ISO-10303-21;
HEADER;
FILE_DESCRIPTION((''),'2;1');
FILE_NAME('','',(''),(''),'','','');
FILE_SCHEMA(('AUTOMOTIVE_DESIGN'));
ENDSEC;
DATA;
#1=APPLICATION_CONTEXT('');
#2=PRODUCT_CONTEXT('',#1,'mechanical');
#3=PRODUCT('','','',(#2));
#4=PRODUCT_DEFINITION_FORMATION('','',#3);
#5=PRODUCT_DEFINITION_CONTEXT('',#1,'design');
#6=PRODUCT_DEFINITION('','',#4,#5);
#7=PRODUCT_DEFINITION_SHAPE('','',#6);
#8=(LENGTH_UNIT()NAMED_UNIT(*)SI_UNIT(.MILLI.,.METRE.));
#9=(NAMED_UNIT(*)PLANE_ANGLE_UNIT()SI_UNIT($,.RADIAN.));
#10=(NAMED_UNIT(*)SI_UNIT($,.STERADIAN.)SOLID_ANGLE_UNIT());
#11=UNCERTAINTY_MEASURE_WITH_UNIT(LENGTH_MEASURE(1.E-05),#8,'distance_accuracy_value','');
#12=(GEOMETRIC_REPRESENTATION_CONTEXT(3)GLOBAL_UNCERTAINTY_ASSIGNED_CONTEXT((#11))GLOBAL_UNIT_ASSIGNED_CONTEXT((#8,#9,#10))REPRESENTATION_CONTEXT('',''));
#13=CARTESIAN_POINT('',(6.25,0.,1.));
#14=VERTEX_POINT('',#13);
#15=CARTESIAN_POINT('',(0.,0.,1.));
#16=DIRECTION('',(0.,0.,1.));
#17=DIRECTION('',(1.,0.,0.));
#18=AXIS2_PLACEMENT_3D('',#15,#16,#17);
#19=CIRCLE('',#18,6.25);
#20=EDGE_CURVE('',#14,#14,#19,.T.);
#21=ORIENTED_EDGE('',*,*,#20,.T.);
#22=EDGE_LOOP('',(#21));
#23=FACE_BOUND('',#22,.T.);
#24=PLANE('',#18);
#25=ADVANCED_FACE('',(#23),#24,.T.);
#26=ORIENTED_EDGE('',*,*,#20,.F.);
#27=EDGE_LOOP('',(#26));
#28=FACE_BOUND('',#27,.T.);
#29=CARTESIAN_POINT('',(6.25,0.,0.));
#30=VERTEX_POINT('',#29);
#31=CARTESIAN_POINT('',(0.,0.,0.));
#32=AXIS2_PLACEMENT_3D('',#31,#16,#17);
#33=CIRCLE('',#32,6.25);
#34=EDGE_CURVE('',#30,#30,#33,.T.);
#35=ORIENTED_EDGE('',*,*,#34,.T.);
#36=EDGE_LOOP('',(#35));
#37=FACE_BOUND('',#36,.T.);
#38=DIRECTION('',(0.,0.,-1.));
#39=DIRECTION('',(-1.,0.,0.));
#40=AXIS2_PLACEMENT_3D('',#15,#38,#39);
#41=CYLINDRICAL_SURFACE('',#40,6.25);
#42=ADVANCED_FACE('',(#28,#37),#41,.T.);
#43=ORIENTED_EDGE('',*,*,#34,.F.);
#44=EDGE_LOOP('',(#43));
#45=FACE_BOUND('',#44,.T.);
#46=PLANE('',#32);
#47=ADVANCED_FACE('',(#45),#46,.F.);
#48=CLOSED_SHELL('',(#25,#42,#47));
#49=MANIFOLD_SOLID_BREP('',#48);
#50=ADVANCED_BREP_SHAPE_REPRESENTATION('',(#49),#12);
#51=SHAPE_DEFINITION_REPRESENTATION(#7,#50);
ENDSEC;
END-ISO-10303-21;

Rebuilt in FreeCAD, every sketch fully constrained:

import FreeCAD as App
import Part
import Sketcher

doc = App.newDocument("Part")
body = doc.addObject("PartDesign::Body", "Body")

# Sketch on XY plane
sketch1 = doc.addObject("Sketcher::SketchObject", "Sketch")
body.addObject(sketch1)
sketch1.AttachmentSupport = (doc.XY_Plane, [""])
sketch1.MapMode = "FlatFace"
sketch1.addGeometry(Part.Circle(App.Vector(0, 0, 0), App.Vector(0, 0, 1), 6.25), False)
sketch1.addConstraint(Sketcher.Constraint("Coincident", 0, 3, -1, 1))
sketch1.addConstraint(Sketcher.Constraint("Diameter", 0, 12.5))
pad1 = doc.addObject("PartDesign::Pad", "Pad")
body.addObject(pad1)
pad1.Profile = sketch1
pad1.Length = 1

doc.recompute()
